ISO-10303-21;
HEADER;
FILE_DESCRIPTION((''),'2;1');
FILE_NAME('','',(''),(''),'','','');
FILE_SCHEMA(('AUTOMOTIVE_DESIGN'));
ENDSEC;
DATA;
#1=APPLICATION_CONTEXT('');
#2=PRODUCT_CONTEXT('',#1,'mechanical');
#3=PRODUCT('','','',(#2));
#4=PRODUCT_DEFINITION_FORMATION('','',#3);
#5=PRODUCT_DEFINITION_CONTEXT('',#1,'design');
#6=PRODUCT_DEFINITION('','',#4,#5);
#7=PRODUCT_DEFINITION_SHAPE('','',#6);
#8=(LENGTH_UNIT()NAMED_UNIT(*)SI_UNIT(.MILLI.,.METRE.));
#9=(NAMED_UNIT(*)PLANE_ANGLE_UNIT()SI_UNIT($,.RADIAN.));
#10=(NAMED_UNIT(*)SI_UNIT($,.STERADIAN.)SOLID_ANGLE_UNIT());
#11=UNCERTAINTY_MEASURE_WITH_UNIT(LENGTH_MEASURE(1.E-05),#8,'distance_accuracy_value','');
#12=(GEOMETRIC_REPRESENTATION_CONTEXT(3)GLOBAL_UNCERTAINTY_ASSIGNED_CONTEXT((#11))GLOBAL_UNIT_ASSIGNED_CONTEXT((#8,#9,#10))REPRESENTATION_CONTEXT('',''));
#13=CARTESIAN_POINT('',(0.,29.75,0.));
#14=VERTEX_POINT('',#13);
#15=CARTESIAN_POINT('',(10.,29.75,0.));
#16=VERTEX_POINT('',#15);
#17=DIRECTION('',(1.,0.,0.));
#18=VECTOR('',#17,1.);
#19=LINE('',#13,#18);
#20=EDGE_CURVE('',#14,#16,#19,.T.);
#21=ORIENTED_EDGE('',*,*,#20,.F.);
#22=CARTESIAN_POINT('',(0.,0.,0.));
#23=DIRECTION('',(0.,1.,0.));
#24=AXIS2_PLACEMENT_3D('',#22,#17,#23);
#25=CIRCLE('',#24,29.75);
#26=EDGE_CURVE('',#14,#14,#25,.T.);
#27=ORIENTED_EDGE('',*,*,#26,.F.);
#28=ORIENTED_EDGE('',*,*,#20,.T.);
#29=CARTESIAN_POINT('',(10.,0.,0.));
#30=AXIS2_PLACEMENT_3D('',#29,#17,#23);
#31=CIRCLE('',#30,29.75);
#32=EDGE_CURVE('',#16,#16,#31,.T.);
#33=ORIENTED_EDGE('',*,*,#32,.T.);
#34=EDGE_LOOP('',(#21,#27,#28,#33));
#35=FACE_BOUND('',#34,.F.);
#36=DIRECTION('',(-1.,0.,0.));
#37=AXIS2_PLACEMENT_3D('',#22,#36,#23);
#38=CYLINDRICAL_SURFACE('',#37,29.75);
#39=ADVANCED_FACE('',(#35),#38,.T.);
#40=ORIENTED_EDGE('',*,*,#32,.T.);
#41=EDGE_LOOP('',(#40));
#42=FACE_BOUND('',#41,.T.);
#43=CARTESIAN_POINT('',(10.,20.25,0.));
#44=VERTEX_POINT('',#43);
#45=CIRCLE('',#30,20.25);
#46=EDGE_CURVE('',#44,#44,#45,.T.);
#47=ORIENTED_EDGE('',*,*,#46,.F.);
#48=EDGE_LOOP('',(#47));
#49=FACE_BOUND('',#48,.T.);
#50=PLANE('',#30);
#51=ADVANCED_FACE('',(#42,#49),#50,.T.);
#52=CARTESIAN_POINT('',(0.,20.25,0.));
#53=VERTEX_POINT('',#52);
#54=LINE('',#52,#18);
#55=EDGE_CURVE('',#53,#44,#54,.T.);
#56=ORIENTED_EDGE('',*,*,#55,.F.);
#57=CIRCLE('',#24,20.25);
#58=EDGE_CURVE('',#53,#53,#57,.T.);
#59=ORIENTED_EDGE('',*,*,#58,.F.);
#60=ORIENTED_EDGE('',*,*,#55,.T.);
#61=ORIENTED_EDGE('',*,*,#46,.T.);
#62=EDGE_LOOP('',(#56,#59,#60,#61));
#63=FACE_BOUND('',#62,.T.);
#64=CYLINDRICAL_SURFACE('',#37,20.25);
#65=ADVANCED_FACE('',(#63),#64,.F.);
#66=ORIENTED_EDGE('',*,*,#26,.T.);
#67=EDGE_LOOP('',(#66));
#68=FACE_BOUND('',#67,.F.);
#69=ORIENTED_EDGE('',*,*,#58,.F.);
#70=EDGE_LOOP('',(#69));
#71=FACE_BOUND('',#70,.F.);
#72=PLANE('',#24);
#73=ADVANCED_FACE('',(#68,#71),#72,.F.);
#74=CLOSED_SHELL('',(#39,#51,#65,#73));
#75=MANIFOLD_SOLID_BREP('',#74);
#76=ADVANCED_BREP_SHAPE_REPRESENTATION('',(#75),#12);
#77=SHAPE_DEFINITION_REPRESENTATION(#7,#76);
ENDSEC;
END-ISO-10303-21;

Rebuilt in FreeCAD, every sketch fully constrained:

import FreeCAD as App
import Part
import Sketcher
from FreeCAD import Vector
Q = App.Units.Quantity

doc = App.newDocument("Part")
body = doc.addObject("PartDesign::Body", "Body")

# Sketch on YZ plane
sketch1 = doc.addObject("Sketcher::SketchObject", "Sketch")
body.addObject(sketch1)
sketch1.AttachmentSupport = (doc.YZ_Plane, [""])
sketch1.MapMode = "FlatFace"
sketch1.addGeometry([
    Part.Circle(Vector(0, 0, 0), Vector(0, 0, 1), 30),
    Part.Circle(Vector(0, 0, 0), Vector(0, 0, 1), 20),
], False)
sketch1.addConstraint([
    Sketcher.Constraint("Coincident", 0, 3, -1, 1),
    Sketcher.Constraint("Coincident", 1, 3, -1, 1),
    Sketcher.Constraint("Diameter", 1, Q("40.5 mm")),
    Sketcher.Constraint("Diameter", 0, Q("59.5 mm")),
])
pad1 = doc.addObject("PartDesign::Pad", "Pad")
body.addObject(pad1)
pad1.Profile = sketch1
pad1.Length = 10

doc.recompute()
